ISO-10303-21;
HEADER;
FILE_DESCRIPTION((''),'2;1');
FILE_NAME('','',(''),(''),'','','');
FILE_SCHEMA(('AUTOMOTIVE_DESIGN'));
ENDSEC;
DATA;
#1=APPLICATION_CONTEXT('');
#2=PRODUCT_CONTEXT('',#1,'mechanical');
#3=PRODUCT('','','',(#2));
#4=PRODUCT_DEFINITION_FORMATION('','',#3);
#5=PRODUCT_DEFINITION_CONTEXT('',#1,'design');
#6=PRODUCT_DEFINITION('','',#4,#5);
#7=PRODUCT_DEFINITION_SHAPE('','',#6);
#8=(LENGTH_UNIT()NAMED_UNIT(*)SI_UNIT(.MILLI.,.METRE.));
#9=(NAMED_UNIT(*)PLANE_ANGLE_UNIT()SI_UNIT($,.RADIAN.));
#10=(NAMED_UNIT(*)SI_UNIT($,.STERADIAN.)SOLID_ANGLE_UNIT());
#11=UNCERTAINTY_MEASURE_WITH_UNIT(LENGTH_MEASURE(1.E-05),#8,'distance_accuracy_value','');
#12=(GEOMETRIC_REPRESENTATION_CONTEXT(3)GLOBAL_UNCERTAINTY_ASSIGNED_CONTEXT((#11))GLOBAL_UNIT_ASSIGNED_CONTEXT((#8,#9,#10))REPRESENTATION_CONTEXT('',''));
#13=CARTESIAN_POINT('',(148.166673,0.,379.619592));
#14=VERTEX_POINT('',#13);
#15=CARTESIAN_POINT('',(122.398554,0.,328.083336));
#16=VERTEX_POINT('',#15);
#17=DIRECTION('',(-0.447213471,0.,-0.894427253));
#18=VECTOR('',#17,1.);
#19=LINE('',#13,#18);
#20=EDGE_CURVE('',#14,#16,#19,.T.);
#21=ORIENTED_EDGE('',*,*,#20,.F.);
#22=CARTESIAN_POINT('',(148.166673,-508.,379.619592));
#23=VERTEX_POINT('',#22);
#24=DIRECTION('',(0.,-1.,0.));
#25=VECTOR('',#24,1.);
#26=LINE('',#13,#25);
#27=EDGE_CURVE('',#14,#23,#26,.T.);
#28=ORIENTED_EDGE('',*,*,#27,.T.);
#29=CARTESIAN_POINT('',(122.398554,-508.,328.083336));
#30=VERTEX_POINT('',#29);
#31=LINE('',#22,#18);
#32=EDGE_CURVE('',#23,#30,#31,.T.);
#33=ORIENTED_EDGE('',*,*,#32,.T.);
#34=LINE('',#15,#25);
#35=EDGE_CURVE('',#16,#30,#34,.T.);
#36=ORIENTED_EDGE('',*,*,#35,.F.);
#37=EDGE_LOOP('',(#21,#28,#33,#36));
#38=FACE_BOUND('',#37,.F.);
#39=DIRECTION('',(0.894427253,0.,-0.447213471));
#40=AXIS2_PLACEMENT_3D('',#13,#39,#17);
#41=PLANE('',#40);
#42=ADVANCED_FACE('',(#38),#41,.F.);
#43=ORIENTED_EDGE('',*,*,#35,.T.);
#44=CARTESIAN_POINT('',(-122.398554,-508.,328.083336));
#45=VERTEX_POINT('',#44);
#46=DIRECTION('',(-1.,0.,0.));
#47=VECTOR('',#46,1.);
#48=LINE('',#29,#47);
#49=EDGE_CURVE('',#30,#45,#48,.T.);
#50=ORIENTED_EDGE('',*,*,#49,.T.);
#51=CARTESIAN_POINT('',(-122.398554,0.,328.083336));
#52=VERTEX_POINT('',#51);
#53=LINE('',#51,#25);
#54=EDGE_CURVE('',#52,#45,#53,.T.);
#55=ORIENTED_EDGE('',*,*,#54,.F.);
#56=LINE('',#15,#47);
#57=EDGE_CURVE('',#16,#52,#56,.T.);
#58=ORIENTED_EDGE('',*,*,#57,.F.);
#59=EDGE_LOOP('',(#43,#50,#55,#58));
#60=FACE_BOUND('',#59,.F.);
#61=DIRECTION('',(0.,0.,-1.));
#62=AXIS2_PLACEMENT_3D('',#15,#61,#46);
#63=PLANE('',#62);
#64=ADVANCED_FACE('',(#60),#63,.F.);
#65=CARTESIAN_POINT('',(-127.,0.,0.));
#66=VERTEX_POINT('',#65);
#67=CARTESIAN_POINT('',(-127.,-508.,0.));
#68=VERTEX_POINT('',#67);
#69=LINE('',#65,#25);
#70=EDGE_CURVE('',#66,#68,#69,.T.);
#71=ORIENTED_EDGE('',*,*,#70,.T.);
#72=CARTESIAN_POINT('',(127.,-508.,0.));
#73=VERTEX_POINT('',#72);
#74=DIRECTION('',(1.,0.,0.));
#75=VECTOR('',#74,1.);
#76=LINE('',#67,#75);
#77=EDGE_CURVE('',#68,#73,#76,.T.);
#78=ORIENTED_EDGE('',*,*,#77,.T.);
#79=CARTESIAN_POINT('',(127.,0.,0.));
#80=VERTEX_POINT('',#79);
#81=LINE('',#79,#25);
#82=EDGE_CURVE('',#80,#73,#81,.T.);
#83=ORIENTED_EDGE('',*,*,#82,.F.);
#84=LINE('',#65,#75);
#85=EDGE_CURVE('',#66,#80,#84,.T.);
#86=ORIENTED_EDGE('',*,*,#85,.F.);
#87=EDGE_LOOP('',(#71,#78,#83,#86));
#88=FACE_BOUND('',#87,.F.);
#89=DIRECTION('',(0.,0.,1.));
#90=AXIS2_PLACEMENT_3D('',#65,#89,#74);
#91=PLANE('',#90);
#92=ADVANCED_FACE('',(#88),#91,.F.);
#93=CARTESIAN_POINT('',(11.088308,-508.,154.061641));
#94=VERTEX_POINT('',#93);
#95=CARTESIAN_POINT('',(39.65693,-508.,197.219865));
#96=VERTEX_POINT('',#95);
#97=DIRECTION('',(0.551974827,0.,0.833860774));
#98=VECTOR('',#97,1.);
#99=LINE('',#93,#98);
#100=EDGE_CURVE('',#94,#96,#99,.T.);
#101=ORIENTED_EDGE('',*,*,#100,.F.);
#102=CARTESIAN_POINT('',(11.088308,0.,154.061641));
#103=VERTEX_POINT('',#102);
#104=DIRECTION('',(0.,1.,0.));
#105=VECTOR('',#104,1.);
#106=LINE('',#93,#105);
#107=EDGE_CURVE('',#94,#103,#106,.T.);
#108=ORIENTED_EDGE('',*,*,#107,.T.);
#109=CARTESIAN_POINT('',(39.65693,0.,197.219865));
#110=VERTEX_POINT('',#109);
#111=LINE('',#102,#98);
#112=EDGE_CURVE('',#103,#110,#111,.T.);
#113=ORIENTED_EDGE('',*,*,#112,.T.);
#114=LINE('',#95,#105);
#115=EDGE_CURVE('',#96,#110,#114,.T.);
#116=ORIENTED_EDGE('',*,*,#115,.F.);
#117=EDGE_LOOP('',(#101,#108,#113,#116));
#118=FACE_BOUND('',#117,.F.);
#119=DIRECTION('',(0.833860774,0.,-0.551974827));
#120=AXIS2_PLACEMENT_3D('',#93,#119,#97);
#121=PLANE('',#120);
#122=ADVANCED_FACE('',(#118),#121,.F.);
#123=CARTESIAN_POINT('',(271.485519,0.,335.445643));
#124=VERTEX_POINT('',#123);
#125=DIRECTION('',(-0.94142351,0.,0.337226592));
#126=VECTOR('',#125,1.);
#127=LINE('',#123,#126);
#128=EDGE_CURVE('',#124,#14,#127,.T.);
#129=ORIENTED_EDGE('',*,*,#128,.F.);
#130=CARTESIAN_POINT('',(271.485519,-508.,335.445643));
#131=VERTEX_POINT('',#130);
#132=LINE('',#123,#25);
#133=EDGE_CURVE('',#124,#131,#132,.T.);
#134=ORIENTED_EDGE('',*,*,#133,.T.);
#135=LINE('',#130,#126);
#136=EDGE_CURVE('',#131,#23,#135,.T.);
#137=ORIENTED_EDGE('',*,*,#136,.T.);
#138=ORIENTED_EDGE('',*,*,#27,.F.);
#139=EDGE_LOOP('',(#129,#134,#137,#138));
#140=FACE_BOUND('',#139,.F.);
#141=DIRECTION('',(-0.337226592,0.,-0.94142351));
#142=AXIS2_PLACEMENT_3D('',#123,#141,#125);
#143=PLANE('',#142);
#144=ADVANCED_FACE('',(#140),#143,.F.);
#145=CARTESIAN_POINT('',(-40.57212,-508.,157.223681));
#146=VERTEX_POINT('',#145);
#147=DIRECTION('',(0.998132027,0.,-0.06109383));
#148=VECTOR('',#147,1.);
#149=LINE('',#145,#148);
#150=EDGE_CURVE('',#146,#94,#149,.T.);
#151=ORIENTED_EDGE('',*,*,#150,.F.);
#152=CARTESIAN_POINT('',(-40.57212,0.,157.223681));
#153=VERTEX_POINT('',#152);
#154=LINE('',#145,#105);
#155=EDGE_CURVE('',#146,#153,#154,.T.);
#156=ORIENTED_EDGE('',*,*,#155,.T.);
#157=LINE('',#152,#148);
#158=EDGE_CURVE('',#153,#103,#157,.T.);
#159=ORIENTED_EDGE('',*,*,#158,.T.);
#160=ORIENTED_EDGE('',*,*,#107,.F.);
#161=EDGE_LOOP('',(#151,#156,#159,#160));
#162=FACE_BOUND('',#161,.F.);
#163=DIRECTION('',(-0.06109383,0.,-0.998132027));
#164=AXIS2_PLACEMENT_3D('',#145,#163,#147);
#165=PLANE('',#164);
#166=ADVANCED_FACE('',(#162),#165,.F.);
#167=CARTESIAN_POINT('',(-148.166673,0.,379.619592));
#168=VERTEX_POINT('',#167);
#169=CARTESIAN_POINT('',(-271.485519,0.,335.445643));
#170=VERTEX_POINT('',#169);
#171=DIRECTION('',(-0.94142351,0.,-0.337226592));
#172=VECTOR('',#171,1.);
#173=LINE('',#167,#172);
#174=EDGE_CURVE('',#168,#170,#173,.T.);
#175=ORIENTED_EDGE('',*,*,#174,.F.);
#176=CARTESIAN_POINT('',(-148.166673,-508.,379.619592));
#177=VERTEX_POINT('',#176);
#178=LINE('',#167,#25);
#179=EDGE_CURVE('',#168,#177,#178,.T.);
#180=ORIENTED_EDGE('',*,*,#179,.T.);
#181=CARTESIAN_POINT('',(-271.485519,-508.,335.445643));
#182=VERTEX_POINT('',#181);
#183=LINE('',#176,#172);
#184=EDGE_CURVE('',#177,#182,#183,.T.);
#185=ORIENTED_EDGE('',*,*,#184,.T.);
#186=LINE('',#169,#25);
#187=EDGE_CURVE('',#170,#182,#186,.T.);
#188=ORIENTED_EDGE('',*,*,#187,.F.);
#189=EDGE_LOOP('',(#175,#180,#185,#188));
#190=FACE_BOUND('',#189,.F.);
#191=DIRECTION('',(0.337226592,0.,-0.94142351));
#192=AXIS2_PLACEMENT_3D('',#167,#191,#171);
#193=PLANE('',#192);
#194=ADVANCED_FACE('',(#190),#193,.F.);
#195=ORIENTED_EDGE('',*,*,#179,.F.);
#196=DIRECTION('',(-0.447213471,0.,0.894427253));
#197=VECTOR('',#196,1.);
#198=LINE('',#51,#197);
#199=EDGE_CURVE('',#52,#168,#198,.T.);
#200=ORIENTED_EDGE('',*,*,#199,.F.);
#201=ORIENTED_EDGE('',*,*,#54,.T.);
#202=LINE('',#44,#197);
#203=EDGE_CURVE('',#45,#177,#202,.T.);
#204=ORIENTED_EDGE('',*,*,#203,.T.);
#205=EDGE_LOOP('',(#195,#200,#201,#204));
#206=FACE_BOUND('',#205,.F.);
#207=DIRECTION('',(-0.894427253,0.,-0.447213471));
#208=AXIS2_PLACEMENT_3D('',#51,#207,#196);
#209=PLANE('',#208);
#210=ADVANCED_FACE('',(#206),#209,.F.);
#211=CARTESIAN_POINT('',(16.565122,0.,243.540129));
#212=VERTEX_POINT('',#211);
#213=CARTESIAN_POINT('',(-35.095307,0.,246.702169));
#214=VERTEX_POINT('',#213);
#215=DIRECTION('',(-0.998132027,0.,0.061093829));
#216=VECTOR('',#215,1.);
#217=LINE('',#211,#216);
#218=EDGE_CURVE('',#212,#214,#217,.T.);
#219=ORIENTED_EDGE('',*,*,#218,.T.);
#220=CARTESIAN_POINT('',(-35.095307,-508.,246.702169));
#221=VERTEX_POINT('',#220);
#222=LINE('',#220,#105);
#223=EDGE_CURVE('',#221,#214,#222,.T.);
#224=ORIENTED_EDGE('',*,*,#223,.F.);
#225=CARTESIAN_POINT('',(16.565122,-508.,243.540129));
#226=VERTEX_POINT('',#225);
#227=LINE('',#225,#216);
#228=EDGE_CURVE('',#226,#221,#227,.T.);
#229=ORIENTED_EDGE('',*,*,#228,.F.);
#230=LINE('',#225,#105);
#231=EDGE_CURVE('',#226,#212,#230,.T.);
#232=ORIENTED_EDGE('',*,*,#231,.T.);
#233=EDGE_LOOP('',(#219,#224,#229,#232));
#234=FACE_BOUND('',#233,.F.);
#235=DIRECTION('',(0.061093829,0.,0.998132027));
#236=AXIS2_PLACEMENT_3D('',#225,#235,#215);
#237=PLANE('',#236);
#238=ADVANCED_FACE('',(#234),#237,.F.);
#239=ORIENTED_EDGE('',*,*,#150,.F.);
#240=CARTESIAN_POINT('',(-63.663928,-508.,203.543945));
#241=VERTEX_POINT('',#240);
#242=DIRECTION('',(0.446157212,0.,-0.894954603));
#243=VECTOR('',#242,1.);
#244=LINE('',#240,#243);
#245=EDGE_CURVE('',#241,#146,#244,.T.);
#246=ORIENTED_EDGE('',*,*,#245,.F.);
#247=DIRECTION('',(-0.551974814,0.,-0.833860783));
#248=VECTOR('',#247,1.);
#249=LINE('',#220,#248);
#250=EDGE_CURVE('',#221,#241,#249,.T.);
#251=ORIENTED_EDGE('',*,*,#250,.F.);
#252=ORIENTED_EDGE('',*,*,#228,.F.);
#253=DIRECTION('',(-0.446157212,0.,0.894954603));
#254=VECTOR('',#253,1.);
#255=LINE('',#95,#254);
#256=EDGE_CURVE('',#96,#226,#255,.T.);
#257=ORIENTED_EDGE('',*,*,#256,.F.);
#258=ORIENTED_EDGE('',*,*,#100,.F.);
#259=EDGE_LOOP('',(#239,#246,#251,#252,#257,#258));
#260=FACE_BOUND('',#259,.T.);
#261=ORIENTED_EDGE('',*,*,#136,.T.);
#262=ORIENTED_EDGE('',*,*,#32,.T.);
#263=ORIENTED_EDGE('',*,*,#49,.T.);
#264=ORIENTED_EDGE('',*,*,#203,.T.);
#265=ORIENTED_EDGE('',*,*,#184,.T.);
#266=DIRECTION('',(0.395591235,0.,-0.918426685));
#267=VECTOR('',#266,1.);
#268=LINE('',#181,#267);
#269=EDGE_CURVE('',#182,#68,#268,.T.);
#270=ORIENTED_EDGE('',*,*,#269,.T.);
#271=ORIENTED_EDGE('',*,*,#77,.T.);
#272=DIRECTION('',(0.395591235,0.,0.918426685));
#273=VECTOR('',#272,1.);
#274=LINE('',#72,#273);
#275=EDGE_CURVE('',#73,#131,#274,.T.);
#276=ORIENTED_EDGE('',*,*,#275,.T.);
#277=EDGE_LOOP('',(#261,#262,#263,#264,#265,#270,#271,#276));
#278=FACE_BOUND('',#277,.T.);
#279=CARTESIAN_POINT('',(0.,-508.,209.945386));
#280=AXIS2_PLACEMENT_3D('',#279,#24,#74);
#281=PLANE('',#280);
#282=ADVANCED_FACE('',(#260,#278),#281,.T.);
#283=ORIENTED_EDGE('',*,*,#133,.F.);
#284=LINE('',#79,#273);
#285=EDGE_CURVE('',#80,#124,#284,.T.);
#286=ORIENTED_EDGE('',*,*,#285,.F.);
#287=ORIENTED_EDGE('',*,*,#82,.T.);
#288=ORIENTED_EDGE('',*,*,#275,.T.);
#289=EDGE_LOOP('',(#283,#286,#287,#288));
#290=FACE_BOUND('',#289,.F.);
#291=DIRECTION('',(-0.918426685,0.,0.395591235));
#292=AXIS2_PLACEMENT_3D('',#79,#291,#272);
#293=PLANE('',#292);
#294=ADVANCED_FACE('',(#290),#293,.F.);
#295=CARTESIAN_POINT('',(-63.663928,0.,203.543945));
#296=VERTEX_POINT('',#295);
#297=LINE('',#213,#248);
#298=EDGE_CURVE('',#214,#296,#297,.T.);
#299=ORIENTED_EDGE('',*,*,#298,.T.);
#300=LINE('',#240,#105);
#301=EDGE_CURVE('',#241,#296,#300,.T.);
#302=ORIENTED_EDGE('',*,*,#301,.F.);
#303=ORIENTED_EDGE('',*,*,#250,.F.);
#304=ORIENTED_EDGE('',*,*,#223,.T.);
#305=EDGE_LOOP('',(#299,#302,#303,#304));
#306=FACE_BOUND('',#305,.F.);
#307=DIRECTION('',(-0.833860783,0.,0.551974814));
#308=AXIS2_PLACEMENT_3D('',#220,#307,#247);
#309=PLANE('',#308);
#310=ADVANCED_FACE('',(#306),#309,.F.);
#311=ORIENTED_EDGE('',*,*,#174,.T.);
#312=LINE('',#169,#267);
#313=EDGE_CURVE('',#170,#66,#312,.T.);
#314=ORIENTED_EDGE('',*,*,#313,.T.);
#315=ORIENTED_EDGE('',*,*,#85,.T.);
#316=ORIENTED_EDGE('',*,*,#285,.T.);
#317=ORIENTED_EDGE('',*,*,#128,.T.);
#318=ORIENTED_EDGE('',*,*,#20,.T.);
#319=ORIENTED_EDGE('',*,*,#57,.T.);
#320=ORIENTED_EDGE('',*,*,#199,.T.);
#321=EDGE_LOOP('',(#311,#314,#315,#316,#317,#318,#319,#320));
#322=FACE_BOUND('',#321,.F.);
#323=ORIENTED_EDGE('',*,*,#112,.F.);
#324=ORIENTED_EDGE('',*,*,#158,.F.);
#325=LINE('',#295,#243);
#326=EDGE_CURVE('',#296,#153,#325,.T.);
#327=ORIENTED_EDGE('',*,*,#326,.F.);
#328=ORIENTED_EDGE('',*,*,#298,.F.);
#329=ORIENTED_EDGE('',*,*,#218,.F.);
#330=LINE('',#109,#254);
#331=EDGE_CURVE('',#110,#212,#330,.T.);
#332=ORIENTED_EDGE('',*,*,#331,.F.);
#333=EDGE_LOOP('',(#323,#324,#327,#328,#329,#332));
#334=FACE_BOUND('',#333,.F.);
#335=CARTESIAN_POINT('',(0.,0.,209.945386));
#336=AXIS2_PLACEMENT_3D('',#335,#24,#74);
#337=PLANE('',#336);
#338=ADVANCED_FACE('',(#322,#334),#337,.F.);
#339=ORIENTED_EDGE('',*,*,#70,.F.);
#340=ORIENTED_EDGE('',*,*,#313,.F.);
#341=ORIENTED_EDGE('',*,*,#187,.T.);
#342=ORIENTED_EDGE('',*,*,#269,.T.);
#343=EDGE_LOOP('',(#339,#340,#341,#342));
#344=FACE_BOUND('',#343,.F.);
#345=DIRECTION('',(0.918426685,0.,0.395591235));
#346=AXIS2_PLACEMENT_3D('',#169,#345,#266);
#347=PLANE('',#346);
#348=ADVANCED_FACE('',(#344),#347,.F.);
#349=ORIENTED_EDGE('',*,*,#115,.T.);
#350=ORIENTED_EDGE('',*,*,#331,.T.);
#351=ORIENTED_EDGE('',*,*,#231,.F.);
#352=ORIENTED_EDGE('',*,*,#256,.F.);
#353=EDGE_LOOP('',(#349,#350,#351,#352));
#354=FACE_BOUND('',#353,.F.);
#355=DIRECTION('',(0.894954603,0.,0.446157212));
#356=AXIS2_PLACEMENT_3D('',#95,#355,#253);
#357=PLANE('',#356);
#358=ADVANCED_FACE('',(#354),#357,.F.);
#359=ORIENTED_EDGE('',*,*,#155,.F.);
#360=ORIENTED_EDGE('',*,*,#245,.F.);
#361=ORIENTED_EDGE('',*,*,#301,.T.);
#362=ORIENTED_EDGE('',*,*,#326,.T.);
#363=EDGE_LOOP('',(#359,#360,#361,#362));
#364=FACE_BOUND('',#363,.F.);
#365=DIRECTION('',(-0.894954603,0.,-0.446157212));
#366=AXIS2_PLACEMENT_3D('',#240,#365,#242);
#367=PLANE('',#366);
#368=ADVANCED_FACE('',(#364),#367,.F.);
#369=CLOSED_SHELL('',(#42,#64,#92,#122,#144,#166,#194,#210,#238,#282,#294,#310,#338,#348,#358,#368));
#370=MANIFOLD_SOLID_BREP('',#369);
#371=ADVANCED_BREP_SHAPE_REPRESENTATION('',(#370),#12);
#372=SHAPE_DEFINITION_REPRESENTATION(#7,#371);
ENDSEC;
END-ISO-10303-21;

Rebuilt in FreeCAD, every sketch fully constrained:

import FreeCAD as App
import Part
import Sketcher
from FreeCAD import Vector
Q = App.Units.Quantity


def add_polygon(sketch, points):
    """Adds a closed chain of lines whose ends are joined by coincident constraints."""
    first, n = sketch.GeometryCount, len(points)
    for a, b in zip(points, points[1:] + points[:1]):
        sketch.addGeometry(Part.LineSegment(App.Vector(*a, 0), App.Vector(*b, 0)), False)
    for i in range(n):
        sketch.addConstraint(Sketcher.Constraint("Coincident", first + i, 2, first + (i + 1) % n, 1))

doc = App.newDocument("Part")
body = doc.addObject("PartDesign::Body", "Body")

# Sketch on XZ plane
sketch1 = body.newObject("Sketcher::SketchObject", "Sketch")
sketch1.AttachmentSupport = (doc.getObject("XZ_Plane"), [""])
sketch1.MapMode = "FlatFace"
add_polygon(sketch1, [(-127, 0), (127, 0), (271, 335), (148, 380), (122, 328), (-122, 328), (-148, 380), (-271, 335)])  # lines 0-7
sketch1.addConstraint([
    Sketcher.Constraint("Horizontal", 0),
    Sketcher.Constraint("Horizontal", 4),
    Sketcher.Constraint("Symmetric", 0, 2, 7, 2, -1, 1),
    Sketcher.Constraint("Symmetric", 2, 2, 5, 2, -2),
    Sketcher.Constraint("Symmetric", 1, 2, 6, 2, -2),
    Sketcher.Constraint("Equal", 3, 5),
    Sketcher.Constraint("DistanceX", 0, 1, 0, 2, Q("10 in")),
    Sketcher.Constraint("DistanceX", 4, 2, 4, 1, Q("244.797108 mm")),
    Sketcher.Constraint("Distance", 2, Q("130.991891 mm")),
    Sketcher.Constraint("Distance", 3, Q("57.619282 mm")),
    Sketcher.Constraint("DistanceX", -1, 1, 1, 2, Q("271.485519 mm")),
    Sketcher.Constraint("DistanceY", -1, 1, 2, 2, Q("379.619592 mm")),
    Sketcher.Constraint("DistanceY", 1, 2, 2, 2, Q("44.173949 mm")),
])
pad1 = body.newObject("PartDesign::Pad", "Pad")
pad1.Profile = sketch1
pad1.Length = Q("20 in")

# Sketch on XZ plane
sketch2 = body.newObject("Sketcher::SketchObject", "Sketch001")
sketch2.AttachmentSupport = (doc.getObject("XZ_Plane"), [""])
sketch2.MapMode = "FlatFace"
sketch2.AttachmentOffset = App.Placement(Vector(0, 0, 20 * 25.4), App.Rotation())
add_polygon(sketch2, [(40, 197), (17, 244), (-35, 247), (-64, 204), (-41, 157), (11, 154)])  # lines 0-5
sketch2.addConstraint([
    Sketcher.Constraint("Parallel", 0, 3),
    Sketcher.Constraint("Parallel", 1, 4),
    Sketcher.Constraint("Parallel", 2, 5),
    Sketcher.Constraint("Equal", 0, 1),
    Sketcher.Constraint("Equal", 1, 2),
    Sketcher.Constraint("Equal", 2, 3),
    Sketcher.Constraint("Distance", 0, Q("51.75711 mm")),
    Sketcher.Constraint("DistanceX", -1, 1, 0, 2, Q("16.565122 mm")),
    Sketcher.Constraint("DistanceY", -1, 1, 0, 2, Q("243.540129 mm")),
    Sketcher.Constraint("DistanceY", -1, 1, 1, 2, Q("246.702169 mm")),
    Sketcher.Constraint("DistanceX", 3, 2, -1, 1, Q("40.57212 mm")),
    Sketcher.Constraint("DistanceY", -1, 1, 3, 2, Q("157.223681 mm")),
])
pocket1 = body.newObject("PartDesign::Pocket", "Pocket")
pocket1.Profile = sketch2
pocket1.Type = "ThroughAll"

doc.recompute()
